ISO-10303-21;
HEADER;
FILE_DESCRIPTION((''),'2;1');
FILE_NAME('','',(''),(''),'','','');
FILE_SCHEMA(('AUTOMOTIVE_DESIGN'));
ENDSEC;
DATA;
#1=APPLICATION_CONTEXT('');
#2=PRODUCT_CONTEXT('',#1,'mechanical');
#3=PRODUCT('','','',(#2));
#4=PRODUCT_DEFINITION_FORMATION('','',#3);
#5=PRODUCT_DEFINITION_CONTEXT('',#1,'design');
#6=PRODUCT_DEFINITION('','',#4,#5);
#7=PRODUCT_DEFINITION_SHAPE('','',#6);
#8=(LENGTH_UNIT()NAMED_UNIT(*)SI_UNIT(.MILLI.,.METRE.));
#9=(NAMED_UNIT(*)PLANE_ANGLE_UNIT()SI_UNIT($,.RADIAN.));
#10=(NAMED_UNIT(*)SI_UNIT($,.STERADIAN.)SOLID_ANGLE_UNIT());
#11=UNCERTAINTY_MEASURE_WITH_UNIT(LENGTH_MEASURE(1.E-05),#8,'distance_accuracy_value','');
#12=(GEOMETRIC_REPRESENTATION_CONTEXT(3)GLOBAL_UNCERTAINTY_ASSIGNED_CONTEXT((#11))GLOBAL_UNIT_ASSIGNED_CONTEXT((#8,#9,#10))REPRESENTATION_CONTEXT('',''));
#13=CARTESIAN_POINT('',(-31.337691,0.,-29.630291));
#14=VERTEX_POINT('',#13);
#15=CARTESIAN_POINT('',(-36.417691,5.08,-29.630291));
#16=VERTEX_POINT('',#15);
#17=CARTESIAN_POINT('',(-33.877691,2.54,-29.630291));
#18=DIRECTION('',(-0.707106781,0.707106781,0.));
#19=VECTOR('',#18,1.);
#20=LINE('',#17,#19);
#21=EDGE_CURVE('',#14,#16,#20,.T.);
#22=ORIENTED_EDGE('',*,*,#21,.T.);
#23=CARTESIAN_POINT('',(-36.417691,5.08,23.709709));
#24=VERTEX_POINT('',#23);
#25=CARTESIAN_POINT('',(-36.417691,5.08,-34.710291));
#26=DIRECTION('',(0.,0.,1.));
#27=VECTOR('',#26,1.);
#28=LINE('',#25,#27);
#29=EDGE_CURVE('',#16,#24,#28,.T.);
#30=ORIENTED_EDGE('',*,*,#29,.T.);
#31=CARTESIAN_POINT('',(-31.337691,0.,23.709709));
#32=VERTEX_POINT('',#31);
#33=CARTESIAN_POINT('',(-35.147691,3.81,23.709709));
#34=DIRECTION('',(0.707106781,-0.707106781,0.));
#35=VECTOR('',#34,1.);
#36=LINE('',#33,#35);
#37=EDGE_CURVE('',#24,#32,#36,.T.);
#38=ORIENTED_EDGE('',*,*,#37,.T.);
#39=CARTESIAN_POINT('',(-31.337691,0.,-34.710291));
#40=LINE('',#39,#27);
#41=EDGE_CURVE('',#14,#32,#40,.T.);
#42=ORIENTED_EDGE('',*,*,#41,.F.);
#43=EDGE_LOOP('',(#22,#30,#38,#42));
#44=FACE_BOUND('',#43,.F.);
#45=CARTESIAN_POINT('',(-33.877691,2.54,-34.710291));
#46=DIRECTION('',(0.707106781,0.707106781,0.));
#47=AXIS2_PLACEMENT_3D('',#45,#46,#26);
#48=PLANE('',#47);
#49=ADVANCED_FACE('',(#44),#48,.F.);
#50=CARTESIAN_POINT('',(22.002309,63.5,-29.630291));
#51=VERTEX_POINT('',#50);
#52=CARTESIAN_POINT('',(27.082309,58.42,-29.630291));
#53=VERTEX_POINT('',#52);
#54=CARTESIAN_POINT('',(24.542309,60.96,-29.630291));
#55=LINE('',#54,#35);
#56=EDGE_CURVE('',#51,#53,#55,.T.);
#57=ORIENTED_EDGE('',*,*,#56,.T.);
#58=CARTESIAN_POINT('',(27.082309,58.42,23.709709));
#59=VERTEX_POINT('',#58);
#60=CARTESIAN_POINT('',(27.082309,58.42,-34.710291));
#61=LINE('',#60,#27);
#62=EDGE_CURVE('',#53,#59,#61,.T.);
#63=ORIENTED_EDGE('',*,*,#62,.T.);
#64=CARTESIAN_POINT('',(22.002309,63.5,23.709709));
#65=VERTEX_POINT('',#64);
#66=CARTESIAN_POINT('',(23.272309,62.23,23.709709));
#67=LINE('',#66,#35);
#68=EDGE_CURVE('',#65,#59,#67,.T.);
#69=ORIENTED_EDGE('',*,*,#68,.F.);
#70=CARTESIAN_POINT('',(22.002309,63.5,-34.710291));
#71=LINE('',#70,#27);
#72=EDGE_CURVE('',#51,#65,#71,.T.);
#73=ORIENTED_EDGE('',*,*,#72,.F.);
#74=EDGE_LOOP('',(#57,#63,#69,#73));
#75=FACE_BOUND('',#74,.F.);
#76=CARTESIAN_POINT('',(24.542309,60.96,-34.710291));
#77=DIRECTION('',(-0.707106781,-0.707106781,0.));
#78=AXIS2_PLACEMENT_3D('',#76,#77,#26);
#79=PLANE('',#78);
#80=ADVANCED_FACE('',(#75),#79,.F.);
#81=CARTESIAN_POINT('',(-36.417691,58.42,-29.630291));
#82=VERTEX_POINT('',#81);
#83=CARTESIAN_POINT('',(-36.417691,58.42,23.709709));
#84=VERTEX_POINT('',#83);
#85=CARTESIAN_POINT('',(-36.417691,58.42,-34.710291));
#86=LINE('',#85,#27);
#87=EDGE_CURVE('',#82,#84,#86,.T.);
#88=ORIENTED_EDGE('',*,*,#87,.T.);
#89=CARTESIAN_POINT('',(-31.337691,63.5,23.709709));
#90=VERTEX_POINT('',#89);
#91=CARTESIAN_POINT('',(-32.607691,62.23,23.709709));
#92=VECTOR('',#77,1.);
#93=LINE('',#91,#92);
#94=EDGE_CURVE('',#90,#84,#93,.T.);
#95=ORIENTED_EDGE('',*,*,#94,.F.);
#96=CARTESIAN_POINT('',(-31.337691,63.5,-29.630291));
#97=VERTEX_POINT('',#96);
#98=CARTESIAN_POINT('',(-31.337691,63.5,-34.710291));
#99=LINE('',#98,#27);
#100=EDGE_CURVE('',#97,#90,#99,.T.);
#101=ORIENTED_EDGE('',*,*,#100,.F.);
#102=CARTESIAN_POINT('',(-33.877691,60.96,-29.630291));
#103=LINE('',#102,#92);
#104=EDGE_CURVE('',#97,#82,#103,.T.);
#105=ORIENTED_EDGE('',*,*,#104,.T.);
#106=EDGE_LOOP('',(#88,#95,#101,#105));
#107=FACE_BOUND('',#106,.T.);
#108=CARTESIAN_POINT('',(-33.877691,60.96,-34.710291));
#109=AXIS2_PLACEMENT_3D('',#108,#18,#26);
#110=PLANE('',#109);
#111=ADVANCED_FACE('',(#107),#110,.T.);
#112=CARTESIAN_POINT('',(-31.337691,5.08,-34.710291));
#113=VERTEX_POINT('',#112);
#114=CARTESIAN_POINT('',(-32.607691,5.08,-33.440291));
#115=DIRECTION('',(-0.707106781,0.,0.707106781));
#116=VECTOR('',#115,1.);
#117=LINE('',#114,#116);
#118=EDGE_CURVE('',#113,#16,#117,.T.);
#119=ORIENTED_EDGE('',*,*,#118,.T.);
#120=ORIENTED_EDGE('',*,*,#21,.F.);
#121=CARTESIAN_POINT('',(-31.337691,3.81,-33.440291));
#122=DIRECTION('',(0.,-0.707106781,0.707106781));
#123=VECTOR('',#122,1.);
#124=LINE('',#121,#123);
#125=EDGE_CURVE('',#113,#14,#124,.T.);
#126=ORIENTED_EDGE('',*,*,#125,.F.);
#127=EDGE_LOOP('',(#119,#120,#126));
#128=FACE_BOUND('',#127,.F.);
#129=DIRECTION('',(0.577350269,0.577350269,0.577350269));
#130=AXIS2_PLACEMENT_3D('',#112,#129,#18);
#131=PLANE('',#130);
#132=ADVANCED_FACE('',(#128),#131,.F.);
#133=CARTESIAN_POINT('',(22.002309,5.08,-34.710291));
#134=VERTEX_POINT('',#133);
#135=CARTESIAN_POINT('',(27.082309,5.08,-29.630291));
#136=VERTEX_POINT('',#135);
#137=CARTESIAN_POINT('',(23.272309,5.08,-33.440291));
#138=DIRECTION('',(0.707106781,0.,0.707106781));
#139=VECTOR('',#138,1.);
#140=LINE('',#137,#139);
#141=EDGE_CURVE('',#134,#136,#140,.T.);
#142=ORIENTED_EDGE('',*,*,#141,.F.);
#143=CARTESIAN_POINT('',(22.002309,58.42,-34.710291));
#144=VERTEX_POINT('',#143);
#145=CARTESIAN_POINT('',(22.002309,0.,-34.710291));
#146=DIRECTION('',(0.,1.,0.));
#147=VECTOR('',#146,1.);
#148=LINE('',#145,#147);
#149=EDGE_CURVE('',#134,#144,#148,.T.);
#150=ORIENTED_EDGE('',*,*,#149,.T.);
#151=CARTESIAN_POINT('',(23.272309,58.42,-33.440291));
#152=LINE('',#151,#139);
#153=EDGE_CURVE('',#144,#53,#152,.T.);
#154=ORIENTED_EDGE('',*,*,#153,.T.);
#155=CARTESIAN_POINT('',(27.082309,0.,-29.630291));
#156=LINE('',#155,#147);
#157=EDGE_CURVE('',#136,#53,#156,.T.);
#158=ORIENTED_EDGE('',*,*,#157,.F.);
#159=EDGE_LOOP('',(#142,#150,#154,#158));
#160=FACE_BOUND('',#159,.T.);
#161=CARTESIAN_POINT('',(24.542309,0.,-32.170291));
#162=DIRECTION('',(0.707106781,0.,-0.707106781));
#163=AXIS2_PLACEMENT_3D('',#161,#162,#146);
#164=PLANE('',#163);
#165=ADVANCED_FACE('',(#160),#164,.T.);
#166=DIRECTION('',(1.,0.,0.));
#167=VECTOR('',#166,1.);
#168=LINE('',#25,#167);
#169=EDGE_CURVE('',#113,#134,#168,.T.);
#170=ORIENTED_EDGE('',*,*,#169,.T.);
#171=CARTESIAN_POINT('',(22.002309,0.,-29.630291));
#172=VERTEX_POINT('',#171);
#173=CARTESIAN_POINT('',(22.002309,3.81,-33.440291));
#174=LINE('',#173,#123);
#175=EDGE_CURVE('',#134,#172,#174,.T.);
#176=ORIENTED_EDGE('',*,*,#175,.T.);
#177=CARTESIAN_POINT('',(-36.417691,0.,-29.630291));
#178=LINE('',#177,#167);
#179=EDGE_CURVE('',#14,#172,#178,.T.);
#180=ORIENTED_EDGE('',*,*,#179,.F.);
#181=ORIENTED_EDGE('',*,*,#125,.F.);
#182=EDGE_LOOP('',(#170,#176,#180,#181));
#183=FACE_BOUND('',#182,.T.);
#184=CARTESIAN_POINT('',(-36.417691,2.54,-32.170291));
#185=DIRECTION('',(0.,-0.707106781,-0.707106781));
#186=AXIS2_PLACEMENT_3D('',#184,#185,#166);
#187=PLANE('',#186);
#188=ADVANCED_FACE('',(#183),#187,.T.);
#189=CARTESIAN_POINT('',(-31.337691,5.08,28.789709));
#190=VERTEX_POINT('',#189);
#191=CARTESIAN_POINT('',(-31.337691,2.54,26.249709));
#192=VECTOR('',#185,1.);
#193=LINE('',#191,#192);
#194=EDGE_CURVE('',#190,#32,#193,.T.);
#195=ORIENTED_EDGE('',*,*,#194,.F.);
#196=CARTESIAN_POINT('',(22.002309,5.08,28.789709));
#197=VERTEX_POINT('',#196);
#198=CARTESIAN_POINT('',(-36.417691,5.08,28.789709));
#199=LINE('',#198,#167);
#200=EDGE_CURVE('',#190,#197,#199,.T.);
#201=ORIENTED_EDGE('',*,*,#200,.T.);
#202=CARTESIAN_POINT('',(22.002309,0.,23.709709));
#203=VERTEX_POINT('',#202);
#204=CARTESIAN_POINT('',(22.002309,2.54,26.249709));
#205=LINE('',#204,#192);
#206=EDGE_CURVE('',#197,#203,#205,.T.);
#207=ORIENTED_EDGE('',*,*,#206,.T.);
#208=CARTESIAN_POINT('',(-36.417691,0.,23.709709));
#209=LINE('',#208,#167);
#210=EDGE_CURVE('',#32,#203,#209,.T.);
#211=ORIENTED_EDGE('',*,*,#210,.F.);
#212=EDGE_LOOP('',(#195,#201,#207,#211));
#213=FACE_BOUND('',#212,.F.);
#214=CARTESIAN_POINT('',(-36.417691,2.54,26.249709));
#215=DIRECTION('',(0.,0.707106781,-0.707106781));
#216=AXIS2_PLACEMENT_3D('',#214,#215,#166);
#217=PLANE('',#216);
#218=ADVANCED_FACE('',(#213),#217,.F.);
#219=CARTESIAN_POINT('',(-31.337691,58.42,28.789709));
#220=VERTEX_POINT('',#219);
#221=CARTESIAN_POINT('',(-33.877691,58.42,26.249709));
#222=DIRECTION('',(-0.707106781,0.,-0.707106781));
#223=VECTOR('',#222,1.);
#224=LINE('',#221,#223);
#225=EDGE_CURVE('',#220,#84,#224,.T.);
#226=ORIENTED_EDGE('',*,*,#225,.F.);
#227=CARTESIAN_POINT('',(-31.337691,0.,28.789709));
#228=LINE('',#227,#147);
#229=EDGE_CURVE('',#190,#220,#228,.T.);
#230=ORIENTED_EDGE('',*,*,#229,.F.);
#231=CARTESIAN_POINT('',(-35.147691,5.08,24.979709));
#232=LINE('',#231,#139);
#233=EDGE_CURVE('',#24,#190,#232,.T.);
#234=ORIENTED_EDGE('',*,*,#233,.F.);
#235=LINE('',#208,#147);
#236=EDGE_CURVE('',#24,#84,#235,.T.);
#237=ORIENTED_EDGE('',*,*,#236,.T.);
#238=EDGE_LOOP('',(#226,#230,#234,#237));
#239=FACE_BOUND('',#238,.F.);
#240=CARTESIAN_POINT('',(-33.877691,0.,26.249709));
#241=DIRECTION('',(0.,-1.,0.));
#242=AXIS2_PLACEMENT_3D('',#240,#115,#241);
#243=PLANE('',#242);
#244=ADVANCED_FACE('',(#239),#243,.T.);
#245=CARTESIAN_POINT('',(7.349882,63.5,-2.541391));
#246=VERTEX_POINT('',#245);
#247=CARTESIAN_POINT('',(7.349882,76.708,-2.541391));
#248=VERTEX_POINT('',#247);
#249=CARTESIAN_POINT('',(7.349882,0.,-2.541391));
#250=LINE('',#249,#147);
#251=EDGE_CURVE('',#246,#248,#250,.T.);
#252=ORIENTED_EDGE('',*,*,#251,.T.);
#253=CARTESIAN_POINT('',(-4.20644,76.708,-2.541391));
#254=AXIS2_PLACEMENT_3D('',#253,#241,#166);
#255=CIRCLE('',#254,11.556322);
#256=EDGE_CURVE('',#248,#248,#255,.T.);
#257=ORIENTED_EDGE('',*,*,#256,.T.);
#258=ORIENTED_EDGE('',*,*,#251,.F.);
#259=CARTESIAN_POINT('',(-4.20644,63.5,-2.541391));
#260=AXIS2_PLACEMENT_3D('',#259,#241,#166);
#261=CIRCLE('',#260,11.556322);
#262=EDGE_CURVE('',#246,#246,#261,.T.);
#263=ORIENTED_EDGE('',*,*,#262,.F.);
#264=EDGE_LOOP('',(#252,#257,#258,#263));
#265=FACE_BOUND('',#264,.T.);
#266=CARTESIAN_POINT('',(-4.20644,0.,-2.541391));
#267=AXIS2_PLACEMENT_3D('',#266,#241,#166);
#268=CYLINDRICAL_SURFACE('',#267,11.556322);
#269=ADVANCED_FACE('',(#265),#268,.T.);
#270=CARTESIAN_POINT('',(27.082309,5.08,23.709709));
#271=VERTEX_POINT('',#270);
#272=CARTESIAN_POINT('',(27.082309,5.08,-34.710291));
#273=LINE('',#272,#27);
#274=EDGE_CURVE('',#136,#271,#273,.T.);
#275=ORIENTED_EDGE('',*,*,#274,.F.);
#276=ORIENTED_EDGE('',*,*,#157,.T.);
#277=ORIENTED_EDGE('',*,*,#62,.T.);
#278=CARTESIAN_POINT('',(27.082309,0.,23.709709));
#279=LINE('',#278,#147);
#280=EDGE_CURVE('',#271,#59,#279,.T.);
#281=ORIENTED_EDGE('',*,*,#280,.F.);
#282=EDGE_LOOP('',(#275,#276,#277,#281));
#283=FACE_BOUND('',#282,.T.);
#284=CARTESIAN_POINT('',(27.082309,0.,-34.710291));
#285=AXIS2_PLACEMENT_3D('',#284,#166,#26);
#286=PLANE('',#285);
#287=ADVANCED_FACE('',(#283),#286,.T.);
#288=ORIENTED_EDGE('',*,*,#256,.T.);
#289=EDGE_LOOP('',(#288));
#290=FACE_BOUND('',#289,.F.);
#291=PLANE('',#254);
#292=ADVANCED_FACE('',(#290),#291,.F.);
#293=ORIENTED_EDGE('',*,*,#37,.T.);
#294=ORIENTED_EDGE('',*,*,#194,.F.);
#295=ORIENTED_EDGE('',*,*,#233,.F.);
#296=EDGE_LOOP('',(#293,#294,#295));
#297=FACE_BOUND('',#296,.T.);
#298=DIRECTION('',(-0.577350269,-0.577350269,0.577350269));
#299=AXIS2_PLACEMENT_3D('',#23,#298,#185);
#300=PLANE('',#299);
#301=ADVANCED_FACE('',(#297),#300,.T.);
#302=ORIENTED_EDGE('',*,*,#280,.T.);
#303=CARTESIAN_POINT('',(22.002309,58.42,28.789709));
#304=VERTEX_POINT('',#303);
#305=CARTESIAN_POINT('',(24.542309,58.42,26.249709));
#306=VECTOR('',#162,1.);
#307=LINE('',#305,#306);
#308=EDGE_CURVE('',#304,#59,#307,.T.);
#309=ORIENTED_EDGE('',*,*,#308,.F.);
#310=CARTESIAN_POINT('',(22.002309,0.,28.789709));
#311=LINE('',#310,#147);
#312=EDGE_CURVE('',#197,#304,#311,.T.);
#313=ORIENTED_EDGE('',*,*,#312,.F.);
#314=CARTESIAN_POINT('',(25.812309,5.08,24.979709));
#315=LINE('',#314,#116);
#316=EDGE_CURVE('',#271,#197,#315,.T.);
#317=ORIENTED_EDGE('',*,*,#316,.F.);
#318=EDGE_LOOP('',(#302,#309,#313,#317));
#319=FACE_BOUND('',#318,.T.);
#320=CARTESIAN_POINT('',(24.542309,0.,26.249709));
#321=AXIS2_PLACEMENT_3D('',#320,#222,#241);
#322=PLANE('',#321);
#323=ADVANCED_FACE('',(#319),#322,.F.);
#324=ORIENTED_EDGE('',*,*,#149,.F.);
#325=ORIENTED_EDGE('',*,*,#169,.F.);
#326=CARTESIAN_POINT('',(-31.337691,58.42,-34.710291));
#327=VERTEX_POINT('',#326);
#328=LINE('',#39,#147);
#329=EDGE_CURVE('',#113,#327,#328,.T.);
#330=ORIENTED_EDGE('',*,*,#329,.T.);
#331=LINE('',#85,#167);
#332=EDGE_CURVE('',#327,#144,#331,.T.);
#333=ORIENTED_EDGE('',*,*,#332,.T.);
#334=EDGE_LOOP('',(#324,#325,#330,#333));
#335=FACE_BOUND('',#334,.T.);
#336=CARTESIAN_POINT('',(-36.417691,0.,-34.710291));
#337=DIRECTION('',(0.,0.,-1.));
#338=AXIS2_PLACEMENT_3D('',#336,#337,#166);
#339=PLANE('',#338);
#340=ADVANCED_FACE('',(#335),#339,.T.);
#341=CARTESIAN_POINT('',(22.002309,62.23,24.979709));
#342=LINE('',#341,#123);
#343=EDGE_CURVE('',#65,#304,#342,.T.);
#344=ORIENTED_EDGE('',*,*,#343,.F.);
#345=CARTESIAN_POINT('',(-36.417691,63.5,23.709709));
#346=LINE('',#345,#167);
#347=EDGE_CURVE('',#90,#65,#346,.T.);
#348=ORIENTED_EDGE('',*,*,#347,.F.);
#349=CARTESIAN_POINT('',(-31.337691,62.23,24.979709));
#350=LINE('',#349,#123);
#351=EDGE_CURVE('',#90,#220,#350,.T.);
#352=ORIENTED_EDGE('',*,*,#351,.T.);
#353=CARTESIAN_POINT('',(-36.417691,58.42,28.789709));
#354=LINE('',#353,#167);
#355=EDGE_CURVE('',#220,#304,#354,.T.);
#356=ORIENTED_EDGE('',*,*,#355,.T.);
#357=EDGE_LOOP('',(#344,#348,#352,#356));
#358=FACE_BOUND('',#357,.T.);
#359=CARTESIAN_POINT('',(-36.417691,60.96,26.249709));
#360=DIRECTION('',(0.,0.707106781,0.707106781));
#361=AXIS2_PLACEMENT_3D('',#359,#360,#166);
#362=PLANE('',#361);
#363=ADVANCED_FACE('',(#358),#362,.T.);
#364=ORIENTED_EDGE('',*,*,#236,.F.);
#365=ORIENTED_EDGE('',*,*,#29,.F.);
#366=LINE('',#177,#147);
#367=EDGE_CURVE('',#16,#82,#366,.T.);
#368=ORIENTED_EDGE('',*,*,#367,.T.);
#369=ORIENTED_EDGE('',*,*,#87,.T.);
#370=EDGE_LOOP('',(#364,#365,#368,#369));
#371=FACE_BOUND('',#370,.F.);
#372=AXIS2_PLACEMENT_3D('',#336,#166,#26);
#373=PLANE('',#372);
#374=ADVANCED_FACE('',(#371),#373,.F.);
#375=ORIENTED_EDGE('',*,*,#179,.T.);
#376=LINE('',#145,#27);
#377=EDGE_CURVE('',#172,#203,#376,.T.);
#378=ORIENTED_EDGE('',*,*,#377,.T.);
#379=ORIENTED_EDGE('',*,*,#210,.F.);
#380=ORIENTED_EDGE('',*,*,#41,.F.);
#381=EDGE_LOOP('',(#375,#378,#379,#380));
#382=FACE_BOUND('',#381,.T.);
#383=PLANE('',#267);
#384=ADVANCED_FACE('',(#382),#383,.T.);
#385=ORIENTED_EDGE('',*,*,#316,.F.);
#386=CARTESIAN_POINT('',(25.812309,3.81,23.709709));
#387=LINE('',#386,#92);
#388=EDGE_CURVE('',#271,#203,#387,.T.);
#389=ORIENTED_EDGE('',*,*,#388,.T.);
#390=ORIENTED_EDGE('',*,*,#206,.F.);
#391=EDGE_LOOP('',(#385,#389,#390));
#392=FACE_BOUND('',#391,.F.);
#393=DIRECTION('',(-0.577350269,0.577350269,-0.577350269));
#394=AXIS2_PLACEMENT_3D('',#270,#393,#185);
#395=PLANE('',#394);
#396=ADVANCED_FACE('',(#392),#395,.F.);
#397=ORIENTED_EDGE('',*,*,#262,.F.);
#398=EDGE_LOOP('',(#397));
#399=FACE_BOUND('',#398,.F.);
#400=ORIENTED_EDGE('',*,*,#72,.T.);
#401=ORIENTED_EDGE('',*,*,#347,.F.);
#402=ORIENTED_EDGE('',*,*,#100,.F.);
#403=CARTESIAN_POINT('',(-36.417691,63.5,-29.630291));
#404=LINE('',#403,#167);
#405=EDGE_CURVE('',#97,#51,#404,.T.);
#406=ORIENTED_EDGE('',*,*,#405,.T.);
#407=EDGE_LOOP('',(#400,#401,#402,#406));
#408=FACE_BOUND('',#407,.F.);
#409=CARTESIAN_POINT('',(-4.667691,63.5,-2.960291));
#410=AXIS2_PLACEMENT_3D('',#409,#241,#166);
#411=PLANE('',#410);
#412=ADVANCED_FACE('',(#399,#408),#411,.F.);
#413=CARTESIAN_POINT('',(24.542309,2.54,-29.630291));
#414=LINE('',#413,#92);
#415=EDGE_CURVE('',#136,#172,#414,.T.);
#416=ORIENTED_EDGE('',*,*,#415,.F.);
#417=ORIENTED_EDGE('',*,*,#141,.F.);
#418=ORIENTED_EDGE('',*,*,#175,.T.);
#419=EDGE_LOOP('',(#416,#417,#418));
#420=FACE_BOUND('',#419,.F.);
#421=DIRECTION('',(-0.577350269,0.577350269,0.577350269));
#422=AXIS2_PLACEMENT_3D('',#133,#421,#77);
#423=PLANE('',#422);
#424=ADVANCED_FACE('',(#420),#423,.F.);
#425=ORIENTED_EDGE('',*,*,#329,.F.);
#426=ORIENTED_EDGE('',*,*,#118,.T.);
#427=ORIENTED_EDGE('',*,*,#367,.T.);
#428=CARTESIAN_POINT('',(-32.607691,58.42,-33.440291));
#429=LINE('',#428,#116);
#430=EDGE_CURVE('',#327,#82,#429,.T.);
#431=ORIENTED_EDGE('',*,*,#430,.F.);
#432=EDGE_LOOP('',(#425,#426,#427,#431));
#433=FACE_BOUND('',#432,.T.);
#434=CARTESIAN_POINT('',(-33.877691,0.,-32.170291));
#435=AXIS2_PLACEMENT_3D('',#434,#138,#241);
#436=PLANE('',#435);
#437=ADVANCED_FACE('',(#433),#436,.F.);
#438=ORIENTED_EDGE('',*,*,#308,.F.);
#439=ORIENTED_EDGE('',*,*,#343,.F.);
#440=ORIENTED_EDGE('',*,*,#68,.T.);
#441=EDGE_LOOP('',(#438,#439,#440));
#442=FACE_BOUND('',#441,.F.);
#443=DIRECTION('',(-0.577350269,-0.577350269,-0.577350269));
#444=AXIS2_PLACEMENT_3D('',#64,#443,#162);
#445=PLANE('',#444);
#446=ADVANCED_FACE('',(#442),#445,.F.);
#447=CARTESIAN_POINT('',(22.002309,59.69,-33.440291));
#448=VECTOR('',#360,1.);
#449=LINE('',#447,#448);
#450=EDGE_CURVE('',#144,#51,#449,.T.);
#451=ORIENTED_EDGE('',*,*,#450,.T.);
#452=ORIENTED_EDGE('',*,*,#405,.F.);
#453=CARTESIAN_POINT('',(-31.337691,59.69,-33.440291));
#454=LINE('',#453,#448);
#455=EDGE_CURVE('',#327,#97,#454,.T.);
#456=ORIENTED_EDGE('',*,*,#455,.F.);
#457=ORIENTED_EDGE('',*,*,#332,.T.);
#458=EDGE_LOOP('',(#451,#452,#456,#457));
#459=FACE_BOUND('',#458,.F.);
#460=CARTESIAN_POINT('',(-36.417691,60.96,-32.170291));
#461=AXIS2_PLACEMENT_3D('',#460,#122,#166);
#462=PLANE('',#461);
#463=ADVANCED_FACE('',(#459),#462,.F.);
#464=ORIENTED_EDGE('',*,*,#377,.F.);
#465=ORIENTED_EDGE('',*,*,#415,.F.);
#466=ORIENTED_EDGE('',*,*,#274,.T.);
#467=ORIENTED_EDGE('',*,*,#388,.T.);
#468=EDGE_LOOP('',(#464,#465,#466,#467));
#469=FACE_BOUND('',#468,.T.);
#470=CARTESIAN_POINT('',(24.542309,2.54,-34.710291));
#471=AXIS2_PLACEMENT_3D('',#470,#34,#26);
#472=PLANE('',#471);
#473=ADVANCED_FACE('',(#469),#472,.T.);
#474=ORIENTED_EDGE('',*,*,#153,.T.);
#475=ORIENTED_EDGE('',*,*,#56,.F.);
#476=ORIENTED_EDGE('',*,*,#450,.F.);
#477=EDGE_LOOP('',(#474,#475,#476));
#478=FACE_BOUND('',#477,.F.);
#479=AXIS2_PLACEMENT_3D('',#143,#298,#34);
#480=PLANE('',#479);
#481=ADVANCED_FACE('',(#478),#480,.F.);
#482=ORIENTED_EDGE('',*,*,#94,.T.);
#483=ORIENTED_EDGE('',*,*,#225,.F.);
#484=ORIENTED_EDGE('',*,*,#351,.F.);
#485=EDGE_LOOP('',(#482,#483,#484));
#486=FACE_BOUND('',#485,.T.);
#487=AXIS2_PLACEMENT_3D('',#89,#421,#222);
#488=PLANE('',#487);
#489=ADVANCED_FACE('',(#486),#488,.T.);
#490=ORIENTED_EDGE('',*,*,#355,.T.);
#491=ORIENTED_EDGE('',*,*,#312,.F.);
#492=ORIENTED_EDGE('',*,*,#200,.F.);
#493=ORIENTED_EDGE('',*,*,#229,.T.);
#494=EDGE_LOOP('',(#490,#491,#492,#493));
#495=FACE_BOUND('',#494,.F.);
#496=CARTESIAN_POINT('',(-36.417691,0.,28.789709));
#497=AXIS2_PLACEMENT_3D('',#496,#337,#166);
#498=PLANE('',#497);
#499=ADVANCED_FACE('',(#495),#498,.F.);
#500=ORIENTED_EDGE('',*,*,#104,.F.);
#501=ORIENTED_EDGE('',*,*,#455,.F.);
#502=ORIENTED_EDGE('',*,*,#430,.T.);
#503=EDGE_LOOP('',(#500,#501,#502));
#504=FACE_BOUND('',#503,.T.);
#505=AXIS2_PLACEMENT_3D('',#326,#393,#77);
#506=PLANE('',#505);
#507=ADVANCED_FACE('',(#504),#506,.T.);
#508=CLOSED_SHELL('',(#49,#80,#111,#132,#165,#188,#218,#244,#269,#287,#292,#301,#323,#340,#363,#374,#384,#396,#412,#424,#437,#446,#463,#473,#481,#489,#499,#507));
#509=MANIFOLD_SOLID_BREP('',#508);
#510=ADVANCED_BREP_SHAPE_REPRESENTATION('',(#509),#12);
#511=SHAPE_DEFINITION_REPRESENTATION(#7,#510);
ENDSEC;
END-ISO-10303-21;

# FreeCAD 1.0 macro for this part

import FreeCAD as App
import Part
import Sketcher
from FreeCAD import Vector
Q = App.Units.Quantity

doc = App.newDocument("Part")
body = doc.addObject("PartDesign::Body", "Body")

# Sketch on XZ plane
sketch1 = body.newObject("Sketcher::SketchObject", "Sketch")
sketch1.AttachmentSupport = (doc.getObject("XZ_Plane"), [""])
sketch1.MapMode = "FlatFace"
sketch1.addGeometry(Part.LineSegment(Vector(-36, 29, 0), Vector(-36, -35, 0)), False)
sketch1.addGeometry(Part.LineSegment(Vector(-36, -35, 0), Vector(27, -35, 0)), False)
sketch1.addGeometry(Part.LineSegment(Vector(27, -35, 0), Vector(27, 29, 0)), False)
sketch1.addGeometry(Part.LineSegment(Vector(27, 29, 0), Vector(-36, 29, 0)), False)
sketch1.addConstraint(Sketcher.Constraint("Coincident", 0, 2, 1, 1))
sketch1.addConstraint(Sketcher.Constraint("Coincident", 1, 2, 2, 1))
sketch1.addConstraint(Sketcher.Constraint("Coincident", 2, 2, 3, 1))
sketch1.addConstraint(Sketcher.Constraint("Coincident", 3, 2, 0, 1))
sketch1.addConstraint(Sketcher.Constraint("Vertical", 0))
sketch1.addConstraint(Sketcher.Constraint("Horizontal", 1))
sketch1.addConstraint(Sketcher.Constraint("Vertical", 2))
sketch1.addConstraint(Sketcher.Constraint("Horizontal", 3))
sketch1.addConstraint(Sketcher.Constraint("Equal", 3, 0))
sketch1.addConstraint(Sketcher.Constraint("DistanceX", 1, 1, 1, 2, Q("2.5 in")))
sketch1.addConstraint(Sketcher.Constraint("DistanceX", 0, 2, -1, 1, Q("36.417691 mm")))
sketch1.addConstraint(Sketcher.Constraint("DistanceY", 0, 2, -1, 1, Q("34.710291 mm")))
pad1 = body.newObject("PartDesign::Pad", "Pad")
pad1.Profile = sketch1
pad1.Length = Q("2.5 in")
pad1.Reversed = True
doc.recompute()

chamfer = body.newObject("PartDesign::Chamfer", "Chamfer")
chamfer.Base = (pad1, ["Edge1"])
chamfer.UseAllEdges = True
chamfer.Size = Q("0.2 in")

# Sketch on XZ plane
sketch2 = body.newObject("Sketcher::SketchObject", "Sketch001")
sketch2.AttachmentSupport = (doc.getObject("XZ_Plane"), [""])
sketch2.MapMode = "FlatFace"
sketch2.addGeometry(Part.Circle(Vector(-4, -3, 0), Vector(0, 0, 1), 12), False)
sketch2.addConstraint(Sketcher.Constraint("Diameter", 0, Q("23.112644 mm")))
sketch2.addConstraint(Sketcher.Constraint("DistanceX", 0, 3, -1, 1, Q("4.20644 mm")))
sketch2.addConstraint(Sketcher.Constraint("DistanceY", 0, 3, -1, 1, Q("2.541391 mm")))
pad2 = body.newObject("PartDesign::Pad", "Pad001")
pad2.Profile = sketch2
pad2.Length = Q("3.02 in")
pad2.Reversed = True

doc.recompute()
